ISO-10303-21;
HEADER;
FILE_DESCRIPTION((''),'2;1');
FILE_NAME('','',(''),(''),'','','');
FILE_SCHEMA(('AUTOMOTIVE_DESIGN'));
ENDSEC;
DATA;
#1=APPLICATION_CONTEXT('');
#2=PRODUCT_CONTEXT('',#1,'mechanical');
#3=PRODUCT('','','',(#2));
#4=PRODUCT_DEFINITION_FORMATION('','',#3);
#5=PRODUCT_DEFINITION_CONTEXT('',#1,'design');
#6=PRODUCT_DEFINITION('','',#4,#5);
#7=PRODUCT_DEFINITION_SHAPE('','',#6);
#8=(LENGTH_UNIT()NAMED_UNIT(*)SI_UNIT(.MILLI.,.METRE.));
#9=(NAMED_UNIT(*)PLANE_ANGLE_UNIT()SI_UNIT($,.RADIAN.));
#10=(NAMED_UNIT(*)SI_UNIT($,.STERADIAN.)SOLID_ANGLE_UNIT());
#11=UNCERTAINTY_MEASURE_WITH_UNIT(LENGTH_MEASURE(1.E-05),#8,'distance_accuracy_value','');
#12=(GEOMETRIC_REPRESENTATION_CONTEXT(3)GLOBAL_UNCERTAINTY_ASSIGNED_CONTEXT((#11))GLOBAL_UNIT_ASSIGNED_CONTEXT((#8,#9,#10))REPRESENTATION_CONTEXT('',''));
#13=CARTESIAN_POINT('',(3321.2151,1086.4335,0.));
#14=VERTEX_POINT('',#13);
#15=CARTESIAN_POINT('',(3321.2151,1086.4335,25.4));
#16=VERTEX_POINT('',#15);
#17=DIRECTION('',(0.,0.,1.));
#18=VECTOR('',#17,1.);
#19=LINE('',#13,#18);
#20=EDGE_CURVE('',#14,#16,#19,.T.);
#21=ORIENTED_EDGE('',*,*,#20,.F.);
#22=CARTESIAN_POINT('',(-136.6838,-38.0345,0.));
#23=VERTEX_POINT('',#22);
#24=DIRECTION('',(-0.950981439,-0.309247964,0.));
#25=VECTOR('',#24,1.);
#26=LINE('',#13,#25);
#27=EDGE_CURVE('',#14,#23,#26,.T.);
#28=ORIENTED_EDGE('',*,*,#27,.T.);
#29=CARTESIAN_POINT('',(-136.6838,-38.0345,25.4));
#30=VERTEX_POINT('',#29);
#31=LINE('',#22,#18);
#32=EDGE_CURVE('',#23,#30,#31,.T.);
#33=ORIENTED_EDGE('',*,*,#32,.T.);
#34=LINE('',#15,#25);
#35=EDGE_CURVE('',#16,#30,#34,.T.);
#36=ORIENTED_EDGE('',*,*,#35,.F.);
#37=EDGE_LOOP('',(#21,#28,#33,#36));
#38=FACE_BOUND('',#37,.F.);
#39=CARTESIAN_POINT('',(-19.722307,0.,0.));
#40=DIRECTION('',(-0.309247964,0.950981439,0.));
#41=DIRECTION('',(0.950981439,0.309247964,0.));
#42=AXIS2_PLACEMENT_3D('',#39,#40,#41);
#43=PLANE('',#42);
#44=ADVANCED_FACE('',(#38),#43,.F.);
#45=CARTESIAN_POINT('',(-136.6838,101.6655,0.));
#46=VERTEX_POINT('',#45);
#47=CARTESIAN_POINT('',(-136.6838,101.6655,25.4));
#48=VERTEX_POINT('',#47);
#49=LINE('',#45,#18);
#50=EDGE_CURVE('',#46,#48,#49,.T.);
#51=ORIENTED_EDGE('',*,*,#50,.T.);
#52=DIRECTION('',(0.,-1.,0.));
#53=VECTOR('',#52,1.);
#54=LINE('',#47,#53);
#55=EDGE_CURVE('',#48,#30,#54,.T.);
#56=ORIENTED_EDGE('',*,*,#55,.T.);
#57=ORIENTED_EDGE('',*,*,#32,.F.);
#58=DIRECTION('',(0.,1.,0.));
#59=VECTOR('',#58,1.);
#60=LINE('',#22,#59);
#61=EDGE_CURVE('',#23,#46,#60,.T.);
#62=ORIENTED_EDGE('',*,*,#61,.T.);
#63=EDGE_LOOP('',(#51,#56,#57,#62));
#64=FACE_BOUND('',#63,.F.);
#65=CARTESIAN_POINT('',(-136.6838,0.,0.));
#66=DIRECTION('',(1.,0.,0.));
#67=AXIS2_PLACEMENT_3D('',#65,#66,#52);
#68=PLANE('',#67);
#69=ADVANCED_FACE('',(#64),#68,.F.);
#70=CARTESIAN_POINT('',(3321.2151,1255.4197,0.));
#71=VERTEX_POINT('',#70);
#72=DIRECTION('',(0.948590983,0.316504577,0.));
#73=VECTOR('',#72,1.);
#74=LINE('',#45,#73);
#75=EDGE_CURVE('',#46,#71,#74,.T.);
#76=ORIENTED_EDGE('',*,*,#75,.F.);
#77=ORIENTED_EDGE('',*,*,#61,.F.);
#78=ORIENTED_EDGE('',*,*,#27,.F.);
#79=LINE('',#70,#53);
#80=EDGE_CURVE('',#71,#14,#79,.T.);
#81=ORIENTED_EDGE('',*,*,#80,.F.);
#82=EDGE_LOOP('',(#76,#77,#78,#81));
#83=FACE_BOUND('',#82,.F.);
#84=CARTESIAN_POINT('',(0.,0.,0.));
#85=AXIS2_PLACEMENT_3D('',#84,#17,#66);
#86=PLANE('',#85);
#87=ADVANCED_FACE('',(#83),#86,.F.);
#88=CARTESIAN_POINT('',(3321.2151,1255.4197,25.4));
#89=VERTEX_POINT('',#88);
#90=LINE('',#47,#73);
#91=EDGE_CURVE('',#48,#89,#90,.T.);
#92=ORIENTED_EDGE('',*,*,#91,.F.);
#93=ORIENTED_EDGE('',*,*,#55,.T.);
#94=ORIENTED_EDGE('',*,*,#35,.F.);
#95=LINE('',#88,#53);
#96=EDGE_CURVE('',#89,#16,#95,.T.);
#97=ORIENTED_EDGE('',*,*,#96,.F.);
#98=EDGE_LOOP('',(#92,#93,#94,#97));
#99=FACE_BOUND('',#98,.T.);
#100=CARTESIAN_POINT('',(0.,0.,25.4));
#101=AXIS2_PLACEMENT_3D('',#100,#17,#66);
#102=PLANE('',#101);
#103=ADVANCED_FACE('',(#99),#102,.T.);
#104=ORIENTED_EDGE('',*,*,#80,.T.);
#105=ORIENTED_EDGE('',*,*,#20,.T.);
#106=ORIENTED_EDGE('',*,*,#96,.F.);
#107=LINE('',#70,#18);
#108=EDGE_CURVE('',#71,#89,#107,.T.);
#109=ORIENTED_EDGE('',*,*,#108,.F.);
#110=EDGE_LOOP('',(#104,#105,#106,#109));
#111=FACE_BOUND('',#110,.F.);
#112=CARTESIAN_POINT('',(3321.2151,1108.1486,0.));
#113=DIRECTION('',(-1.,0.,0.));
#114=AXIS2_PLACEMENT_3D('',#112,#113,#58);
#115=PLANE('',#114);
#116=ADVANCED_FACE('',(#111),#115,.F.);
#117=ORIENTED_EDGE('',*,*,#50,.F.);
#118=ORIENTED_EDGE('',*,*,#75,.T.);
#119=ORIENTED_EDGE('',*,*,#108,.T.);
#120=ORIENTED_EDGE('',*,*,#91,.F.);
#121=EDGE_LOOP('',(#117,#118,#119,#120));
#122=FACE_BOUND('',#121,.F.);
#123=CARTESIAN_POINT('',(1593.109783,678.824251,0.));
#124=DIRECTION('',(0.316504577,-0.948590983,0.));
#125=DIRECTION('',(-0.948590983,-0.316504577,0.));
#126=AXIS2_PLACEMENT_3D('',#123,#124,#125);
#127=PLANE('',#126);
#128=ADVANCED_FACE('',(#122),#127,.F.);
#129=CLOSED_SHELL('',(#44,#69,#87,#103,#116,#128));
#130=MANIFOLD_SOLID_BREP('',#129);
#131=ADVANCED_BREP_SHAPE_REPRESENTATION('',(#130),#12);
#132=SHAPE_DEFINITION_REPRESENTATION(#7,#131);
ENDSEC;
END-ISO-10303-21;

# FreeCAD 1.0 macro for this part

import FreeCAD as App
import Part
import Sketcher

V = App.Vector
Q = App.Units.Quantity


def add_polygon(sketch, points):
    """Adds a closed chain of lines whose ends are joined by coincident constraints."""
    first, n = sketch.GeometryCount, len(points)
    for a, b in zip(points, points[1:] + points[:1]):
        sketch.addGeometry(Part.LineSegment(App.Vector(*a, 0), App.Vector(*b, 0)), False)
    for i in range(n):
        sketch.addConstraint(Sketcher.Constraint("Coincident", first + i, 2, first + (i + 1) % n, 1))

doc = App.newDocument("Part")
params = doc.addObject("Spreadsheet::Sheet", "Params")
for row, (alias, value) in enumerate([
    ("sketch1_height", "5.5 in"),
    ("sketch1_height2", "6.653 in"),
    ("sketch1_length", "143.155 in"),
    ("pad1_length", "1 in"),
], start=1):
    params.set(f"A{row}", alias)
    params.set(f"B{row}", "=" + value)
    params.setAlias(f"B{row}", alias)

body = doc.addObject("PartDesign::Body", "Body")

# Sketch on XY plane
sketch1 = body.newObject("Sketcher::SketchObject", "Sketch")
sketch1.AttachmentSupport = (doc.getObject("XY_Plane"), [""])
sketch1.MapMode = "FlatFace"
add_polygon(sketch1, [(3321, 1086), (3321, 1255), (-137, 102), (-137, -38)])  # lines 0-3
sketch1.addConstraint([
    Sketcher.Constraint("Vertical", 0),
    Sketcher.Constraint("Vertical", 2),
    Sketcher.Constraint("DistanceY", 2, 2, 2, 1, Q("5.5 in")),
    Sketcher.Constraint("DistanceY", 0, 1, 0, 2, Q("6.653 in")),
    Sketcher.Constraint("Distance", 3, Q("143.155 in")),
    Sketcher.Constraint("DistanceX", -1, 1, 0, 2, Q("130.7565 in")),
    Sketcher.Constraint("DistanceY", 1, 2, 0, 2, Q("45.4234 in")),
    Sketcher.Constraint("DistanceY", -1, 1, 0, 2, 1255.4197),
])
sketch1.setExpression("Constraints[6]", "Params.sketch1_height")
sketch1.setExpression("Constraints[7]", "Params.sketch1_height2")
sketch1.setExpression("Constraints[8]", "Params.sketch1_length")
pad1 = body.newObject("PartDesign::Pad", "Pad")
pad1.Profile = sketch1
pad1.setExpression("Length", "Params.pad1_length")

doc.recompute()
